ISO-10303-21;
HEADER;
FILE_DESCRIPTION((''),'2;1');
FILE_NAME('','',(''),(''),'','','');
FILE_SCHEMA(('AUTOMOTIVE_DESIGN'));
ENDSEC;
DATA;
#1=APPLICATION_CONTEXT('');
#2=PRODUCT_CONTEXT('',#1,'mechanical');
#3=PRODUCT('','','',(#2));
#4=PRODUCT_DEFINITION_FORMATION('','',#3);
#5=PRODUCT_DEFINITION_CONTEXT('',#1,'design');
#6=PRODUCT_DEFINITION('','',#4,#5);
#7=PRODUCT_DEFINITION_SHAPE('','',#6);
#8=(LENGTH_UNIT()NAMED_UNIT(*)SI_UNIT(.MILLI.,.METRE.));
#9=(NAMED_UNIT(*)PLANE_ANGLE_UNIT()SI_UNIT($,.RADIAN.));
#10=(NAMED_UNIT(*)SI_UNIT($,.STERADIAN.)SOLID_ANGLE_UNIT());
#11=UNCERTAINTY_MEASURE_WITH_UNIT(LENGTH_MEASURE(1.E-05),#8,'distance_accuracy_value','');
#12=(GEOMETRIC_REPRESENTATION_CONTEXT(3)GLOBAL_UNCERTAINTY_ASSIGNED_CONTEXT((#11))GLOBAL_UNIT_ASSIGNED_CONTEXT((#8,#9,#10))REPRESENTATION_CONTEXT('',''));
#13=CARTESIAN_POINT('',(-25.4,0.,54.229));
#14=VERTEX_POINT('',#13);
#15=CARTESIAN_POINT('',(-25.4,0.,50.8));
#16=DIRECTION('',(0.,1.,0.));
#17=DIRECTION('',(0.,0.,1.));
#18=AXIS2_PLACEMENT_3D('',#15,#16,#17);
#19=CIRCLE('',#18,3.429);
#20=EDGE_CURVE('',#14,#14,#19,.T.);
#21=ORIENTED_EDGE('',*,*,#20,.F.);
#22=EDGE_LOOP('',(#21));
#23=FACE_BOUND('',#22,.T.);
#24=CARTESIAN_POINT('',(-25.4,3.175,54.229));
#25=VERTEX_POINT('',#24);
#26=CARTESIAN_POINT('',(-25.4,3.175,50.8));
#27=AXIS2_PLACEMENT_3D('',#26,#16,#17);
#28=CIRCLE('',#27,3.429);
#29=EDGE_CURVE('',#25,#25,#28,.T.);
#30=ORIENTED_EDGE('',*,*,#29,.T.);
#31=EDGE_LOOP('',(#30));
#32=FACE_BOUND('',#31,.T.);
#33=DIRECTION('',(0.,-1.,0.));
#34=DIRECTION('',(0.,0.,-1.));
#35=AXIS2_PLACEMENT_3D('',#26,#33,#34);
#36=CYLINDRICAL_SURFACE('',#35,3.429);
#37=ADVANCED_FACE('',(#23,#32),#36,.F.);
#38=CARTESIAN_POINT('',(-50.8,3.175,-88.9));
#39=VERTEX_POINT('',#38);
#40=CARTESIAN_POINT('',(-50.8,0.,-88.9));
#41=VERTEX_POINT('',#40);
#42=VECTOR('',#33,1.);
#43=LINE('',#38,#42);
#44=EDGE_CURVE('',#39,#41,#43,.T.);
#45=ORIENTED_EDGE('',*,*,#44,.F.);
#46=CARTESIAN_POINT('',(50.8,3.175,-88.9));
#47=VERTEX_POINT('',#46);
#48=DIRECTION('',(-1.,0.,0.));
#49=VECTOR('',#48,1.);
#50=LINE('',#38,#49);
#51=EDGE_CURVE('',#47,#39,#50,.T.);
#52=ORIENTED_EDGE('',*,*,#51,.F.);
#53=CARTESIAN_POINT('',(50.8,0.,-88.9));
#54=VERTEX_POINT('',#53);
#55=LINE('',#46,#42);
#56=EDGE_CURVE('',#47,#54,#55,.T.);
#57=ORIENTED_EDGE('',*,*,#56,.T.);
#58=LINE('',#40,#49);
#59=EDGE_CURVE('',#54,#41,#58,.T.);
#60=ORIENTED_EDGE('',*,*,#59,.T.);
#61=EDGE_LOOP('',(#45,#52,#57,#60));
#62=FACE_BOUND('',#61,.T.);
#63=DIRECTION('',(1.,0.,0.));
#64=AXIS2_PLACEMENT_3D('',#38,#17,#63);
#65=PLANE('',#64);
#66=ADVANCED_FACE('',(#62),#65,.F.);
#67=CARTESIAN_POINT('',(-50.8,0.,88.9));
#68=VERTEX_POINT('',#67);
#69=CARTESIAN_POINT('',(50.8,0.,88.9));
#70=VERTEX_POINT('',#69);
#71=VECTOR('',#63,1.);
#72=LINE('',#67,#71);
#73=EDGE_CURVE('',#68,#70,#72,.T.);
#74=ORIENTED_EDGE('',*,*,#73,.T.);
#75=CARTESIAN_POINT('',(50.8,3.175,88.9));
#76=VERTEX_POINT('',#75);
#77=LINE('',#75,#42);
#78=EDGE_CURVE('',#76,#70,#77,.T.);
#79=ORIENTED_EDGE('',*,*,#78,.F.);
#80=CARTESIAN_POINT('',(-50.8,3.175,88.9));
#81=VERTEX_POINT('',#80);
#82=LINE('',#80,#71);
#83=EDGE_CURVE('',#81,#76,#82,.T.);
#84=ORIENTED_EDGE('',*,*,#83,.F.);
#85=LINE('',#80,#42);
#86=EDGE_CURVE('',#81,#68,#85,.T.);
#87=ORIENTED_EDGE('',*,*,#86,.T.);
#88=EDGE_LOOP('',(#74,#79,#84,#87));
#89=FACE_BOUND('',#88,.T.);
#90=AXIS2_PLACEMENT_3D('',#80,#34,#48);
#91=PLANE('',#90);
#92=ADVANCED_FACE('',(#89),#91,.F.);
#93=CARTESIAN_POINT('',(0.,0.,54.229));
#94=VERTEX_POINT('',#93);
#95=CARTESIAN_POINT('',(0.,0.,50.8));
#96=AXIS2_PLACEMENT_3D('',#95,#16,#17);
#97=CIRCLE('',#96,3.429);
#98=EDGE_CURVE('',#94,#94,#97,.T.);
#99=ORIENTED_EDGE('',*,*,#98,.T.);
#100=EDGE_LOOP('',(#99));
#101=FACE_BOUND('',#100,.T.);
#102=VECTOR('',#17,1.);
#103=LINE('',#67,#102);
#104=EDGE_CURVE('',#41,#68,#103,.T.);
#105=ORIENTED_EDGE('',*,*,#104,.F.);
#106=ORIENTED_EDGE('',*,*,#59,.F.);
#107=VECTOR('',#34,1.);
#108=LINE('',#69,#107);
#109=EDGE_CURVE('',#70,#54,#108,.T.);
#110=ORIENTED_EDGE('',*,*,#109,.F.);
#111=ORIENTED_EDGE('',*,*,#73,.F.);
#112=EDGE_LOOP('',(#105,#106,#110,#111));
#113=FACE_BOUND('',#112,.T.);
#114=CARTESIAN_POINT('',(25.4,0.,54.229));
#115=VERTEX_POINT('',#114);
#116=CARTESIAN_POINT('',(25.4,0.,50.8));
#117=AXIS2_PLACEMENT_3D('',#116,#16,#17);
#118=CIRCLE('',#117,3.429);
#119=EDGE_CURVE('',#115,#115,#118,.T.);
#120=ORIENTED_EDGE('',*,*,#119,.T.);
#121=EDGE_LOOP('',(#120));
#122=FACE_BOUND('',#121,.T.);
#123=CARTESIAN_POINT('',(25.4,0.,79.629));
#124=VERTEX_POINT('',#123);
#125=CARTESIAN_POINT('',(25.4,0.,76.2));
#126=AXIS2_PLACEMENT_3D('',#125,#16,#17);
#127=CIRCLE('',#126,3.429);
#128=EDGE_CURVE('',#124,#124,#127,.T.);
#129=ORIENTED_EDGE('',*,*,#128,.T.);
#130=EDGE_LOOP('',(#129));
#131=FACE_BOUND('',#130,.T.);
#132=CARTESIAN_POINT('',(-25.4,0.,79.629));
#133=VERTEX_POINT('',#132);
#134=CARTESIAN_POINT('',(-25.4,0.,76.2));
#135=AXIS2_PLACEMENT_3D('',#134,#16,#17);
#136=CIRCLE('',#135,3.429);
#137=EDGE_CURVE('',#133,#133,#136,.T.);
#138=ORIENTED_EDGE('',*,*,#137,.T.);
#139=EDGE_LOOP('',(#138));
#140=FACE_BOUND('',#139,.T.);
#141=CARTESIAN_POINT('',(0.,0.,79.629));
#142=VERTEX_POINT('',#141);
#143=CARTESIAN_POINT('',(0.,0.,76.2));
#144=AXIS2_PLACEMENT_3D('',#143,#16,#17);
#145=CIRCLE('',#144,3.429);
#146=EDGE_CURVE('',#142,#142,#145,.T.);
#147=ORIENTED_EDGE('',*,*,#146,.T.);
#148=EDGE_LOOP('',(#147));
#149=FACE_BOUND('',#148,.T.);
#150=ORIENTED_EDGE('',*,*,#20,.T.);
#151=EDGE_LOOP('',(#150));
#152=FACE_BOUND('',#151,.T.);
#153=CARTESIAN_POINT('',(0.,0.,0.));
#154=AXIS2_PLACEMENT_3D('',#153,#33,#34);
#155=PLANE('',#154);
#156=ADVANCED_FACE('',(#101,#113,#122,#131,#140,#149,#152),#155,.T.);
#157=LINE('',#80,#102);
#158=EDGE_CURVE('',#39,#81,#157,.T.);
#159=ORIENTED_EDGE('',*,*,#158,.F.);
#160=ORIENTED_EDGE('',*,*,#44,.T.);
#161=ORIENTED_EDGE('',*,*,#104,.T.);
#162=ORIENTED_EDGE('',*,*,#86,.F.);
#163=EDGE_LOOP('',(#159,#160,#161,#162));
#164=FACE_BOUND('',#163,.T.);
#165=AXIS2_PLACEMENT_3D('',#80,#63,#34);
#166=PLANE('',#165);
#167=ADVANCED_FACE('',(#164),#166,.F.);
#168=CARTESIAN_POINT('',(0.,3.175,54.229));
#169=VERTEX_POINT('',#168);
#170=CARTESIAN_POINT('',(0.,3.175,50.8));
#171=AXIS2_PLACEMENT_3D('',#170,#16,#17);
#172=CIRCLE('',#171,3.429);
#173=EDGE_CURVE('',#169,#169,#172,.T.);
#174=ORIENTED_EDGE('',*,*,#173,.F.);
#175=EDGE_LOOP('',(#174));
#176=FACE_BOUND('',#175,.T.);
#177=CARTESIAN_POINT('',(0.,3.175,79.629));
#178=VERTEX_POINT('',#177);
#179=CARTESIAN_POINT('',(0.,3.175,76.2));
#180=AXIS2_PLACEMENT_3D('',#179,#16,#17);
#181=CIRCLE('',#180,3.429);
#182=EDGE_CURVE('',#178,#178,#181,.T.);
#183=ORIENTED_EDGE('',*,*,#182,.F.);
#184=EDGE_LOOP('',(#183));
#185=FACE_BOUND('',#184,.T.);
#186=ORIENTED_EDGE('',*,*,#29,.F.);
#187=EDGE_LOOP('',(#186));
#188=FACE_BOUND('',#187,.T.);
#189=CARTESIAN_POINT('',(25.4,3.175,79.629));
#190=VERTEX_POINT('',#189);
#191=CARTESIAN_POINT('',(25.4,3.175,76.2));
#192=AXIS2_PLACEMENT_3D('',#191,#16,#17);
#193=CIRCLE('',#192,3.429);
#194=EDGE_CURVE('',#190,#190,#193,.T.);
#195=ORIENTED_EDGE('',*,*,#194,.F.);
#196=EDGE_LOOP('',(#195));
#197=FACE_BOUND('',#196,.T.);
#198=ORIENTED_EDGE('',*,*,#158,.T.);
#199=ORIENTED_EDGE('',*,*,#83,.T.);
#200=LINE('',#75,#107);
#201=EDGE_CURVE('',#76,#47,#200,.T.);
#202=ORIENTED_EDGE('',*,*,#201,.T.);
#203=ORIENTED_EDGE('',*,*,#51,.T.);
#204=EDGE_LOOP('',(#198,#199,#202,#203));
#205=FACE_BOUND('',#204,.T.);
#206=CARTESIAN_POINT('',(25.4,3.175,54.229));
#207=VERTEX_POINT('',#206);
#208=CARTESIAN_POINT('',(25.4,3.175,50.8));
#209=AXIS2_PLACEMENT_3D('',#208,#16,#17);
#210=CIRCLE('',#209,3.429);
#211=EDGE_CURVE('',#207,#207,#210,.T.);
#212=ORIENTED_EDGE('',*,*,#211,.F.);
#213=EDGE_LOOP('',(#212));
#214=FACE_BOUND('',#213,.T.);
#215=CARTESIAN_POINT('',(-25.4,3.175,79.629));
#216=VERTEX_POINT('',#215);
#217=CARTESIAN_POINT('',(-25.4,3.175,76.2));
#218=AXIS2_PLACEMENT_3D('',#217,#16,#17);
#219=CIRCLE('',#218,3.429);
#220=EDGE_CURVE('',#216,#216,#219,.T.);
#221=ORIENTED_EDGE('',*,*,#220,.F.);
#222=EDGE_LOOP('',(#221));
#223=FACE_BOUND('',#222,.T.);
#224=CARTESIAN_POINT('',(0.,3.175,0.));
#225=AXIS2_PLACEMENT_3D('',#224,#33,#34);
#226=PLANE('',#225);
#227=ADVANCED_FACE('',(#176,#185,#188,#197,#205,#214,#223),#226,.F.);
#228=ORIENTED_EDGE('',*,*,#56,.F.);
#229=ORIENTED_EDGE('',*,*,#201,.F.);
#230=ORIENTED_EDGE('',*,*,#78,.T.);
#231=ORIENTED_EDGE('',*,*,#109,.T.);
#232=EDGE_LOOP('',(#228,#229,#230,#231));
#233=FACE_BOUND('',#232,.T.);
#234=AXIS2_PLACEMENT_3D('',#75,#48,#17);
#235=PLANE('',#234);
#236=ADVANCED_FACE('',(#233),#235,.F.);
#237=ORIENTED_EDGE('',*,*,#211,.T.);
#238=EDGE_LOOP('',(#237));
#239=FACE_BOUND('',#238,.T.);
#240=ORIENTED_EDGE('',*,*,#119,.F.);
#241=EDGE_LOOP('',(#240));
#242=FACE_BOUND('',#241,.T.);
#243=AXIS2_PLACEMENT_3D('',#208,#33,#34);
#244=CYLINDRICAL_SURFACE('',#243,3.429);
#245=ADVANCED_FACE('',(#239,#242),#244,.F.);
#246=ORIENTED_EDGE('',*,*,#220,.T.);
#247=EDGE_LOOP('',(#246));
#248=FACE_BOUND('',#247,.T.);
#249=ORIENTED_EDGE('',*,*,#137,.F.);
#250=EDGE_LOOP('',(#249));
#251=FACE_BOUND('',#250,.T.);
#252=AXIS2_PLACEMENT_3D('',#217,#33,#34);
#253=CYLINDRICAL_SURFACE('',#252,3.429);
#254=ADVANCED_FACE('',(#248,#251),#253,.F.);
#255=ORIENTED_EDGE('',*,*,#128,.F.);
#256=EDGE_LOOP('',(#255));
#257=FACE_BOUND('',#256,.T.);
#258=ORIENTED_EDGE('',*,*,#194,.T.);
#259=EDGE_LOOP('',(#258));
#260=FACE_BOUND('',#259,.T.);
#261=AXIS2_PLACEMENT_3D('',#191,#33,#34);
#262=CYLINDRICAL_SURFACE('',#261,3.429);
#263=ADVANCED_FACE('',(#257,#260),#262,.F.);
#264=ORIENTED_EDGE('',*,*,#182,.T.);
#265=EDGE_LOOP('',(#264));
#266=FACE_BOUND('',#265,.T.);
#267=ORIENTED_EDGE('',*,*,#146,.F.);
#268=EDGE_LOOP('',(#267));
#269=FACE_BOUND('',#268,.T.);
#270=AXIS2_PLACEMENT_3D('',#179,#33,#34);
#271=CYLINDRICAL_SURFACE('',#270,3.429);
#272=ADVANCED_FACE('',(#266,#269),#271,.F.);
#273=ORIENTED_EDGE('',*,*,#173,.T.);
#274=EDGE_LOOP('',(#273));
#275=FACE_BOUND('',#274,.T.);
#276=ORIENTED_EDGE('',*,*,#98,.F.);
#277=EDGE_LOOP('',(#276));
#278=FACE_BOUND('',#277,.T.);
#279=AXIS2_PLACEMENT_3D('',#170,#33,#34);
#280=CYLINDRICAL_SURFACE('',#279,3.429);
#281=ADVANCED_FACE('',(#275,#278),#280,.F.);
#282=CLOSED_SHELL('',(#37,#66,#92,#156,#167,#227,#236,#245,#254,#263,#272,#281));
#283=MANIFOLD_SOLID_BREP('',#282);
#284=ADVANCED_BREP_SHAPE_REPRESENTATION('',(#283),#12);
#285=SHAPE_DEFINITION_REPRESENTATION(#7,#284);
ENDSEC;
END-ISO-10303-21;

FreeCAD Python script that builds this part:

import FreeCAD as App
import Part
import Sketcher

V = App.Vector
Q = App.Units.Quantity


def add_polygon(sketch, points):
    """Adds a closed chain of lines whose ends are joined by coincident constraints."""
    first, n = sketch.GeometryCount, len(points)
    for a, b in zip(points, points[1:] + points[:1]):
        sketch.addGeometry(Part.LineSegment(App.Vector(*a, 0), App.Vector(*b, 0)), False)
    for i in range(n):
        sketch.addConstraint(Sketcher.Constraint("Coincident", first + i, 2, first + (i + 1) % n, 1))

doc = App.newDocument("Part")
params = doc.addObject("Spreadsheet::Sheet", "Params")
for row, (alias, value) in enumerate([
    ("sketch1_diameter", "0.27 in"),
    ("sketch1_width", "4 in"),
    ("sketch1_height", "7 in"),
    ("pad1_length", "0.125 in"),
], start=1):
    params.set(f"A{row}", alias)
    params.set(f"B{row}", "=" + value)
    params.setAlias(f"B{row}", alias)

body = doc.addObject("PartDesign::Body", "Body")

sketch1 = body.newObject("Sketcher::SketchObject", "Sketch")
sketch1.AttachmentSupport = (doc.getObject("XZ_Plane"), [""])
sketch1.MapMode = "FlatFace"
add_polygon(sketch1, [(-50.8, -88.9), (-50.8, 88.9), (50.8, 88.9), (50.8, -88.9)])
sketch1.addGeometry(Part.Circle(V(-25.4, 76.2, 0), V(0, 0, 1), 3.4), False)
sketch1.addGeometry(Part.Circle(V(0, 76.2, 0), V(0, 0, 1), 3.4), False)
sketch1.addGeometry(Part.Circle(V(25.4, 76.2, 0), V(0, 0, 1), 3.4), False)
sketch1.addGeometry(Part.Circle(V(-25.4, 50.8, 0), V(0, 0, 1), 3.4), False)
sketch1.addGeometry(Part.Circle(V(0, 50.8, 0), V(0, 0, 1), 3.4), False)
sketch1.addGeometry(Part.Circle(V(25.4, 50.8, 0), V(0, 0, 1), 3.4), False)
sketch1.addConstraint(Sketcher.Constraint("Vertical", 0))
sketch1.addConstraint(Sketcher.Constraint("Horizontal", 1))
sketch1.addConstraint(Sketcher.Constraint("Vertical", 2))
sketch1.addConstraint(Sketcher.Constraint("Horizontal", 3))
sketch1.addConstraint(Sketcher.Constraint("Equal", 4, 5))
sketch1.addConstraint(Sketcher.Constraint("Equal", 5, 6))
sketch1.addConstraint(Sketcher.Constraint("Equal", 6, 7))
sketch1.addConstraint(Sketcher.Constraint("Equal", 7, 8))
sketch1.addConstraint(Sketcher.Constraint("Equal", 8, 9))
sketch1.addConstraint(Sketcher.Constraint("Symmetric", 0, 2, 2, 2, -1, 1))
sketch1.addConstraint(Sketcher.Constraint("Symmetric", 4, 3, 6, 3, -2))
sketch1.addConstraint(Sketcher.Constraint("Symmetric", 7, 3, 9, 3, -2))
sketch1.addConstraint(Sketcher.Constraint("PointOnObject", 5, 3, -2))
sketch1.addConstraint(Sketcher.Constraint("PointOnObject", 8, 3, -2))
sketch1.addConstraint(Sketcher.Constraint("Horizontal", 4, 3, 5, 3))
sketch1.addConstraint(Sketcher.Constraint("Horizontal", 7, 3, 8, 3))
sketch1.addConstraint(Sketcher.Constraint("Vertical", 4, 3, 7, 3))
sketch1.addConstraint(Sketcher.Constraint("Diameter", 4, Q("0.27 in")))
sketch1.addConstraint(Sketcher.Constraint("DistanceX", 1, 1, 1, 2, Q("4 in")))
sketch1.addConstraint(Sketcher.Constraint("DistanceY", 0, 1, 0, 2, Q("7 in")))
sketch1.addConstraint(Sketcher.Constraint("DistanceX", 4, 3, -1, 1, Q("1 in")))
sketch1.addConstraint(Sketcher.Constraint("DistanceY", -1, 1, 4, 3, Q("3 in")))
sketch1.addConstraint(Sketcher.Constraint("DistanceY", -1, 1, 7, 3, Q("2 in")))
sketch1.setExpression("Constraints[21]", "Params.sketch1_diameter")
sketch1.setExpression("Constraints[22]", "Params.sketch1_width")
sketch1.setExpression("Constraints[23]", "Params.sketch1_height")
pad1 = body.newObject("PartDesign::Pad", "Pad")
pad1.Profile = sketch1
pad1.setExpression("Length", "Params.pad1_length")
pad1.Reversed = True

doc.recompute()
